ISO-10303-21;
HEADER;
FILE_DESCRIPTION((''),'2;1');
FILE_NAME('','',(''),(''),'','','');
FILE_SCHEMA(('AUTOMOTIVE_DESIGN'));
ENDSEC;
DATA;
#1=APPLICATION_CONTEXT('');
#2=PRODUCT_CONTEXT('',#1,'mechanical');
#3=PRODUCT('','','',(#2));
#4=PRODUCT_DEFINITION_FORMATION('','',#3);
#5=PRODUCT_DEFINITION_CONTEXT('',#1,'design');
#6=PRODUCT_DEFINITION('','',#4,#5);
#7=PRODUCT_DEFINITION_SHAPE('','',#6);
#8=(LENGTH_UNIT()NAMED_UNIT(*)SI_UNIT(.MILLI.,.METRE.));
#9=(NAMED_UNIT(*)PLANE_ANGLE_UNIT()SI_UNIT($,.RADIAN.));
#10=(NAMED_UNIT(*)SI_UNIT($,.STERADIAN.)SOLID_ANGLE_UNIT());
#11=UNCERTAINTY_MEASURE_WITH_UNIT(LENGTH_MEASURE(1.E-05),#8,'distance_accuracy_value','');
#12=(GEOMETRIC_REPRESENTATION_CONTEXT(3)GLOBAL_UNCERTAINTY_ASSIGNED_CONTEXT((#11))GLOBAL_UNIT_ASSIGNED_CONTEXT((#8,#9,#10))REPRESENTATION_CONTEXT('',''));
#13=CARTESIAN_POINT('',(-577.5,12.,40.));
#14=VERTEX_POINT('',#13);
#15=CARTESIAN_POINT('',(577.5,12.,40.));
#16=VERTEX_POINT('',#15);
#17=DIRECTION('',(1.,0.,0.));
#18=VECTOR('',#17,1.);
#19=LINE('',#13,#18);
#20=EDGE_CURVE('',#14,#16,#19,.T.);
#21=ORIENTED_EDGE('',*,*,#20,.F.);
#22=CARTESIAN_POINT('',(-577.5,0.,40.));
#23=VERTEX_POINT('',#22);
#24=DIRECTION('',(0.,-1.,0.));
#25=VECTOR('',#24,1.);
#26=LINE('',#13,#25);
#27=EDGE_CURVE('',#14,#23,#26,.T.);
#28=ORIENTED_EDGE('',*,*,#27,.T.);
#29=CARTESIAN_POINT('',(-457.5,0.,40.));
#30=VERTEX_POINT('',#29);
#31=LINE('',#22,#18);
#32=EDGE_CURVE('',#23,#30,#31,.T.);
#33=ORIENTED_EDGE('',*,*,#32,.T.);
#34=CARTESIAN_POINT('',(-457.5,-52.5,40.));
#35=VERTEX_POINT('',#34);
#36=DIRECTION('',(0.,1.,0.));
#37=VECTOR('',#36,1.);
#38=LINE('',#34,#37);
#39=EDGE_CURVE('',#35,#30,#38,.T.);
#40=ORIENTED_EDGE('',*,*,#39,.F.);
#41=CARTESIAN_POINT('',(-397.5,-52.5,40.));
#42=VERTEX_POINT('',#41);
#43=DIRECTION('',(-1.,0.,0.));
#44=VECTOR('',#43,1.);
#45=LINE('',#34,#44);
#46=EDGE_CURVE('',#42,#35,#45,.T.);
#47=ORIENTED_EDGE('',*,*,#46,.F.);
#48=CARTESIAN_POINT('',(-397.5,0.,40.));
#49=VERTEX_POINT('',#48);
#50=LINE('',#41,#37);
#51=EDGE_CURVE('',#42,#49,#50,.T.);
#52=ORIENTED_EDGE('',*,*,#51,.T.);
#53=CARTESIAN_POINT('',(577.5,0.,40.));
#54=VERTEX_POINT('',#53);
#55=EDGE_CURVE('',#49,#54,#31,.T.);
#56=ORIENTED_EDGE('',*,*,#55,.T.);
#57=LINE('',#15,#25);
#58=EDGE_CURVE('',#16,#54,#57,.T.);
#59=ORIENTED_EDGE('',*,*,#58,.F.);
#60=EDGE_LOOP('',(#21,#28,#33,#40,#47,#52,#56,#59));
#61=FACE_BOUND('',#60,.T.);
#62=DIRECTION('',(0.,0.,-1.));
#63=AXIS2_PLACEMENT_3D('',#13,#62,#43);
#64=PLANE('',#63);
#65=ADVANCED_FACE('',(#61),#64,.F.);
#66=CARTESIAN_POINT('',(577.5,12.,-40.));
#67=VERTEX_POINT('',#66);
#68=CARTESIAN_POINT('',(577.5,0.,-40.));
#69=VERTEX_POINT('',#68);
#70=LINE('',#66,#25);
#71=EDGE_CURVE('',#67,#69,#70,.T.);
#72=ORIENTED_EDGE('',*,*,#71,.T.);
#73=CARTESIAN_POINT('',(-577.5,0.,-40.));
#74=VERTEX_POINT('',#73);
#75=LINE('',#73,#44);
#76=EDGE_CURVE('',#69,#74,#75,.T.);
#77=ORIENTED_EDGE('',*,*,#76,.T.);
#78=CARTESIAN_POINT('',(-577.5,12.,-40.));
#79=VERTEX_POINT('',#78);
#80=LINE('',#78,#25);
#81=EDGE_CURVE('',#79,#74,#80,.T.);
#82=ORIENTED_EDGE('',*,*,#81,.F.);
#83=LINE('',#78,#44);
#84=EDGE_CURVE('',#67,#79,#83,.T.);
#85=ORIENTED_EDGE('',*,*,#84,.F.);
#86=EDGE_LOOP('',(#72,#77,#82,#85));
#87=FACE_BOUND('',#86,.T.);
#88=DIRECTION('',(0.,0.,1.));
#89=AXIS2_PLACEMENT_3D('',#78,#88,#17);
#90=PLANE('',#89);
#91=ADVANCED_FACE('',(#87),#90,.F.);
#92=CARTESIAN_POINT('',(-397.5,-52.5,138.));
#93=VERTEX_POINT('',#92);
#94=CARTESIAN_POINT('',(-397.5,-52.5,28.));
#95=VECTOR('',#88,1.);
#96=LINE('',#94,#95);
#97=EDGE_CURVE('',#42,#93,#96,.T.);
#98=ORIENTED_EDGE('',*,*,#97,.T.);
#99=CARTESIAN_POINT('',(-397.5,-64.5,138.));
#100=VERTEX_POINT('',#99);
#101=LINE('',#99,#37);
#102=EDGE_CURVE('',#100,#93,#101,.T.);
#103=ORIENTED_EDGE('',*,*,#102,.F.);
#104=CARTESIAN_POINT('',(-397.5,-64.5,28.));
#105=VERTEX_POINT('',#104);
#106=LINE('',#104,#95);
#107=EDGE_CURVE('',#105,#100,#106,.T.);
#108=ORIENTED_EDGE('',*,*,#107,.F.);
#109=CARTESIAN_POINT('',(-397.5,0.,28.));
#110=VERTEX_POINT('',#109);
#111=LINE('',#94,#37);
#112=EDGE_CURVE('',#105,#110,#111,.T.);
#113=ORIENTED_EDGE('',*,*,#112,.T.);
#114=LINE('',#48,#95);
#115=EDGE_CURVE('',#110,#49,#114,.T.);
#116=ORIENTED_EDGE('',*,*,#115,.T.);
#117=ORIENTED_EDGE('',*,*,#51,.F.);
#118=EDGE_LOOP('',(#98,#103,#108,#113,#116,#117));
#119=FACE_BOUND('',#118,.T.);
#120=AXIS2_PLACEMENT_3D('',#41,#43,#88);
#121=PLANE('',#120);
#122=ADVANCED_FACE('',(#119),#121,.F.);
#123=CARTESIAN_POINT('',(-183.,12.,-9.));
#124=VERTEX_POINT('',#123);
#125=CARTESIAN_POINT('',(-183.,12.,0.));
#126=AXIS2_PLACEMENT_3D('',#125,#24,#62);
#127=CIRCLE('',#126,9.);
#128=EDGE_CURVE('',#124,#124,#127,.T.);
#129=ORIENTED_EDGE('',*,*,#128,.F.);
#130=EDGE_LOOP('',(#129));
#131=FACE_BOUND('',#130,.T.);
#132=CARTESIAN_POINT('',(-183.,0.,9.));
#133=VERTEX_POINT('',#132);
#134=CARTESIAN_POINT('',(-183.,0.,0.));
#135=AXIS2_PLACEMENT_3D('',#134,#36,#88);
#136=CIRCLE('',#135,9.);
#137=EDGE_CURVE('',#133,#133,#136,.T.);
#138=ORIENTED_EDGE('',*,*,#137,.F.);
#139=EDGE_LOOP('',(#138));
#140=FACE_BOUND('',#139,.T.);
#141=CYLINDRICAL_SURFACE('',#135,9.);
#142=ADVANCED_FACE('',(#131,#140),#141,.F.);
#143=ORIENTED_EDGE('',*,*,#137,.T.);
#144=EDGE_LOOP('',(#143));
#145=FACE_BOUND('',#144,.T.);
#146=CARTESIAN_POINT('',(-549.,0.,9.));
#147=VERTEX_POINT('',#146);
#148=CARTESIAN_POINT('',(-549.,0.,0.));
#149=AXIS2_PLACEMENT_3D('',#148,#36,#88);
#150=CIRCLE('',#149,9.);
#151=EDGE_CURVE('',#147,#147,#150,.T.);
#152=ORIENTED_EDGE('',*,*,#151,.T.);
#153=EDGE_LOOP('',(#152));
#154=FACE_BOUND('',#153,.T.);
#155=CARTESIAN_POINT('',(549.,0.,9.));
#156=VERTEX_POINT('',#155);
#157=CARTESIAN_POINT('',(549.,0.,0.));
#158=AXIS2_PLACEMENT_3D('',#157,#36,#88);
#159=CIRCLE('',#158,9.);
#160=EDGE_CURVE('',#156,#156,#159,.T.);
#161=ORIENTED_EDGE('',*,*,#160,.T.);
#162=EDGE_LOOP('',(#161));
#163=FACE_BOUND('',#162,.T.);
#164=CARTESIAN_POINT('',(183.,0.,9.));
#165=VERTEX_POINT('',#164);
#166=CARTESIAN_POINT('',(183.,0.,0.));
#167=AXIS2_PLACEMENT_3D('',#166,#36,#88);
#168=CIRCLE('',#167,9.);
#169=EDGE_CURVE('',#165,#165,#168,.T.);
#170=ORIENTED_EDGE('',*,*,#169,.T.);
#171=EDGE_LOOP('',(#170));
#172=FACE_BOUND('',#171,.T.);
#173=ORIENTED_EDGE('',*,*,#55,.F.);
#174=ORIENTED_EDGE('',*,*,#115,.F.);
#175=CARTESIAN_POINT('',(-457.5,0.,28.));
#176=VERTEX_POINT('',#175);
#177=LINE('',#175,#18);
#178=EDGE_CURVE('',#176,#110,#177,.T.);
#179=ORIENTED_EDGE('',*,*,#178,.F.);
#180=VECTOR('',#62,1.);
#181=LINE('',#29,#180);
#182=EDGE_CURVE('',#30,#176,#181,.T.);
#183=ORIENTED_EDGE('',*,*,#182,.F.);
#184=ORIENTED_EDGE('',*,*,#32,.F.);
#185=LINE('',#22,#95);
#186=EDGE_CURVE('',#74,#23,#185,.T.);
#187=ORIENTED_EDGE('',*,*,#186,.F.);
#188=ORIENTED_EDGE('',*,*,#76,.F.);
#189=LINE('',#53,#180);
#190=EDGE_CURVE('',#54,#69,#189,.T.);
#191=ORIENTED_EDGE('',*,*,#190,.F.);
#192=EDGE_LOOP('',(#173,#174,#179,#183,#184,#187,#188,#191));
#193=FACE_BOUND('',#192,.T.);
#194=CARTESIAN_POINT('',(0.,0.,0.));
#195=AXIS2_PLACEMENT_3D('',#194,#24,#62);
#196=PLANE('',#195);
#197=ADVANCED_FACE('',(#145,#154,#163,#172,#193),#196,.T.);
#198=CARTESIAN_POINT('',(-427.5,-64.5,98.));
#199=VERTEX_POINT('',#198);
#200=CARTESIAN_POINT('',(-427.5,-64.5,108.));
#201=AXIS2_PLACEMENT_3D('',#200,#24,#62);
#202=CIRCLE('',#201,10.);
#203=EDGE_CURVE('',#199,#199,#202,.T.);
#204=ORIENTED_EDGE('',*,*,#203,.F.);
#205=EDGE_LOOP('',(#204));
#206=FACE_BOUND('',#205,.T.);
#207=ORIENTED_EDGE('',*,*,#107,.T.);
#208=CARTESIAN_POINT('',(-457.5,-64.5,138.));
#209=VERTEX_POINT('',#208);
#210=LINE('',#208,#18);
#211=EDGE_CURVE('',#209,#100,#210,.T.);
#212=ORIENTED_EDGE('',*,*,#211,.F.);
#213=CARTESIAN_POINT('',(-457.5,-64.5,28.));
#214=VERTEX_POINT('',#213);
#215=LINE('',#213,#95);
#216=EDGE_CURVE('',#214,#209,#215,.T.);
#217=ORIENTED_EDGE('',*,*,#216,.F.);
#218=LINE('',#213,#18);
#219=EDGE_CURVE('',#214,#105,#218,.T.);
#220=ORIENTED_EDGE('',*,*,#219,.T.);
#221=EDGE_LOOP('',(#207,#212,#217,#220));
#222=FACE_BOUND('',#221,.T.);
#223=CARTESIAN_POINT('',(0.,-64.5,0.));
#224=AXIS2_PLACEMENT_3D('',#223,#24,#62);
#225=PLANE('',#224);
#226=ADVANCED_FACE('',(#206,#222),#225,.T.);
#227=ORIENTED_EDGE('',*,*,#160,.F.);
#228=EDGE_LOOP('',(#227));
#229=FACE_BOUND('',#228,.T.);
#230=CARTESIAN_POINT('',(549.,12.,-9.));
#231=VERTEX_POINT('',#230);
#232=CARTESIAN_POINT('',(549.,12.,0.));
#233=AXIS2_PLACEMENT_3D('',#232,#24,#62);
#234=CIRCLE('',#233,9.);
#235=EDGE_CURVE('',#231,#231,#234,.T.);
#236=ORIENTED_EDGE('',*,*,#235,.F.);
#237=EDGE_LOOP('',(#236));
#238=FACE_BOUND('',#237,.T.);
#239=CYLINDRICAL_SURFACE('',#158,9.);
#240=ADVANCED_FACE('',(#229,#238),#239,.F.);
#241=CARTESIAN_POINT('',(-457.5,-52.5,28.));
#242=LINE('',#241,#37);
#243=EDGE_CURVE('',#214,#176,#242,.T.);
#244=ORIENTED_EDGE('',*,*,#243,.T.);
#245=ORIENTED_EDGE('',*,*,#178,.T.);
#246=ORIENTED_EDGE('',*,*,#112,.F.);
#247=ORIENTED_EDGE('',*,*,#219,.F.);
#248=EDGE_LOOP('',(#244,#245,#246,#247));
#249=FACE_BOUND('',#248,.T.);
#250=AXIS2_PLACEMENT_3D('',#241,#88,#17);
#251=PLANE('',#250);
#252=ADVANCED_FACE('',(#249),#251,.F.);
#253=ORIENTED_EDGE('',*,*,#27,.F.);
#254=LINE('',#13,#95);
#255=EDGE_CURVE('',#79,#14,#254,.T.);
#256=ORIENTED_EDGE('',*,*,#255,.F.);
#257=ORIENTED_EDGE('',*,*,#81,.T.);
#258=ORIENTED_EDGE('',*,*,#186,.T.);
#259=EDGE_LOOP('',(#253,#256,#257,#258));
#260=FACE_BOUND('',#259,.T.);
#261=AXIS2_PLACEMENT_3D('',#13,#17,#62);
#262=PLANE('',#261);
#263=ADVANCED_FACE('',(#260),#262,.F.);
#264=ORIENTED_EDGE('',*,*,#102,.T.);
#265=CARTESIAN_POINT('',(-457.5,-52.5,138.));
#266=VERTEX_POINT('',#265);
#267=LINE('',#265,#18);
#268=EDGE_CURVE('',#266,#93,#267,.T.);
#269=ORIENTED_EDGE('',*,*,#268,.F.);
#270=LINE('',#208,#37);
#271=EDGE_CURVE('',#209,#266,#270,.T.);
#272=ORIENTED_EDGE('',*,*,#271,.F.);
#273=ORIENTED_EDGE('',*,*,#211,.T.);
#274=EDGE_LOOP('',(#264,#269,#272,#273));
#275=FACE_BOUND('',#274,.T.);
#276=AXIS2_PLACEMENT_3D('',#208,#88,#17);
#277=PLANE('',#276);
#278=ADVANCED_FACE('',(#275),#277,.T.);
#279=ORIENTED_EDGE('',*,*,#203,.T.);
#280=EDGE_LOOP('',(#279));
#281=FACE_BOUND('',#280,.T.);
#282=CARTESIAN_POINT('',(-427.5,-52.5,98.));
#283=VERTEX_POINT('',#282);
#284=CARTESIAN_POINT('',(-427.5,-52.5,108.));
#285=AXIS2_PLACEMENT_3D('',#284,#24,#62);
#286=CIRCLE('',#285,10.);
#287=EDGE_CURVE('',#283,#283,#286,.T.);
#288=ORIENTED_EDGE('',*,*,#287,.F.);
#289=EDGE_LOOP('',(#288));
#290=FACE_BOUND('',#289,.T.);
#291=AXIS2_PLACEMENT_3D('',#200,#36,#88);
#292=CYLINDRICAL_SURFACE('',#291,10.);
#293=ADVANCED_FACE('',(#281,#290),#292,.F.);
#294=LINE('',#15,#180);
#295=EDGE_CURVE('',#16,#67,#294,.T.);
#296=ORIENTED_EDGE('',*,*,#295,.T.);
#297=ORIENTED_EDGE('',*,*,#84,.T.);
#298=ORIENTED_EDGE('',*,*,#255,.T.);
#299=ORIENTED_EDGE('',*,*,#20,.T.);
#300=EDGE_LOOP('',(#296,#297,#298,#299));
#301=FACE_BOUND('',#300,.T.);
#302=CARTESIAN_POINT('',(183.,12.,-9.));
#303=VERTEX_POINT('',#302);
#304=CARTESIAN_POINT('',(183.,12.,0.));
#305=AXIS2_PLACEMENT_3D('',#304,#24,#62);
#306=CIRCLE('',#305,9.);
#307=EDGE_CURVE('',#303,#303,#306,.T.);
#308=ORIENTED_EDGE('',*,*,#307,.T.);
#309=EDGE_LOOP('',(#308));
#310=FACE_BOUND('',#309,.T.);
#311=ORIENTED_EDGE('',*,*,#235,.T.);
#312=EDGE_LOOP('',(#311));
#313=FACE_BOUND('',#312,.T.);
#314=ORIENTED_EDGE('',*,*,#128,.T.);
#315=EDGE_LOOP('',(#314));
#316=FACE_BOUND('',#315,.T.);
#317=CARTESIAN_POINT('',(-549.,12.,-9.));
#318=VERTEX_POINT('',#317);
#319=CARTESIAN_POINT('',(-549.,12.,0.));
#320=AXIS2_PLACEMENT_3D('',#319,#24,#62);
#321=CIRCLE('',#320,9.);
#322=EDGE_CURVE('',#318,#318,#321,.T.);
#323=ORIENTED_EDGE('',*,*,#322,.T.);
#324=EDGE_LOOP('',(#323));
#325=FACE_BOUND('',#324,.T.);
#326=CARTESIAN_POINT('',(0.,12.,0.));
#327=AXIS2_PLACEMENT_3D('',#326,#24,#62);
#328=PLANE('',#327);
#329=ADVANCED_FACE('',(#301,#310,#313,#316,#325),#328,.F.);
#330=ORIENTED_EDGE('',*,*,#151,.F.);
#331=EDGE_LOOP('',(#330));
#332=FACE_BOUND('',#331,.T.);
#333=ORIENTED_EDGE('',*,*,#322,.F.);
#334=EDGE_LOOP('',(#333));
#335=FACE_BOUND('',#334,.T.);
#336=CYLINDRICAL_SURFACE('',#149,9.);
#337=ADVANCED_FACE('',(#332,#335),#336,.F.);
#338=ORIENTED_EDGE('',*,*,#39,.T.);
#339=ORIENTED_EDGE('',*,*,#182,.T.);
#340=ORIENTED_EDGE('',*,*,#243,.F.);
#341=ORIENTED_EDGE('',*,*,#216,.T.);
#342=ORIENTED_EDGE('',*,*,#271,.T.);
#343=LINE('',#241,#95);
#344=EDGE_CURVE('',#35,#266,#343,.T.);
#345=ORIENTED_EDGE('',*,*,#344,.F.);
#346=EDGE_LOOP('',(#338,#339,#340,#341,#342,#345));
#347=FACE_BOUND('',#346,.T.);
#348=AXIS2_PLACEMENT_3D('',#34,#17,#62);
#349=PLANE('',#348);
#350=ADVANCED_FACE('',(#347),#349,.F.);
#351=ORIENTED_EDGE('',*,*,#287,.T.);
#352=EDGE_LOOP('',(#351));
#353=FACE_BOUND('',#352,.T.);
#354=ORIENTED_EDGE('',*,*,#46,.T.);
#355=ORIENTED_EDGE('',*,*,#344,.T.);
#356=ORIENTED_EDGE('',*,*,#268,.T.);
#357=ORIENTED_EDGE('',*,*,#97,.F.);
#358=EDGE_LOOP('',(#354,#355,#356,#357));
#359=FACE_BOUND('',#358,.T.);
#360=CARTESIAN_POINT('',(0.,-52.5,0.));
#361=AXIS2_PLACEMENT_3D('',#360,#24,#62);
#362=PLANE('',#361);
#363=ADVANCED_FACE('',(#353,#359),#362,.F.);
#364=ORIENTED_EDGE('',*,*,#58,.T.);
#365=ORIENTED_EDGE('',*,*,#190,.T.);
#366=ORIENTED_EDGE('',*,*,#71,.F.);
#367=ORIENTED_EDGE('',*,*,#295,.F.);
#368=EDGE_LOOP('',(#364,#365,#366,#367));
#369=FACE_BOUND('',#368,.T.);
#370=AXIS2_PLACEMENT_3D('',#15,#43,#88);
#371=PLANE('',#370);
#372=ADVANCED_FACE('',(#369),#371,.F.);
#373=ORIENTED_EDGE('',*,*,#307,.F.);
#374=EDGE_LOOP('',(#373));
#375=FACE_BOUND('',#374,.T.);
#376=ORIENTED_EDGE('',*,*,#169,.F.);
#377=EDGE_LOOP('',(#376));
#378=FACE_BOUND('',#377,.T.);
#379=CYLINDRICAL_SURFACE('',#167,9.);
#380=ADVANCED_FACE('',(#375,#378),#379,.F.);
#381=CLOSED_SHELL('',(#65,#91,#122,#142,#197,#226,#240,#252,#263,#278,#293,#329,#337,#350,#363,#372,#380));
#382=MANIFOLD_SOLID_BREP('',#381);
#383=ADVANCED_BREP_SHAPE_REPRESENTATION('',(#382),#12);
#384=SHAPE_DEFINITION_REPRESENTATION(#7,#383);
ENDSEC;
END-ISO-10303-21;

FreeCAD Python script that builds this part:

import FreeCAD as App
import Part
import Sketcher

doc = App.newDocument("Part")
body = doc.addObject("PartDesign::Body", "Body")

sketch1 = body.newObject("Sketcher::SketchObject", "Sketch")
sketch1.AttachmentSupport = (doc.getObject("XZ_Plane"), [""])
sketch1.MapMode = "FlatFace"
sketch1.addGeometry([
    Part.LineSegment(App.Vector(-578, -40, 0), App.Vector(-578, 40, 0)),
    Part.LineSegment(App.Vector(-578, 40, 0), App.Vector(578, 40, 0)),
    Part.LineSegment(App.Vector(578, 40, 0), App.Vector(578, -40, 0)),
    Part.LineSegment(App.Vector(578, -40, 0), App.Vector(-578, -40, 0)),
], False)
sketch1.addConstraint([
    Sketcher.Constraint("Coincident", 0, 2, 1, 1),
    Sketcher.Constraint("Coincident", 1, 2, 2, 1),
    Sketcher.Constraint("Coincident", 2, 2, 3, 1),
    Sketcher.Constraint("Coincident", 3, 2, 0, 1),
    Sketcher.Constraint("Vertical", 0),
    Sketcher.Constraint("Horizontal", 1),
    Sketcher.Constraint("Vertical", 2),
    Sketcher.Constraint("Horizontal", 3),
    Sketcher.Constraint("Symmetric", 0, 2, 2, 2, -1, 1),
    Sketcher.Constraint("DistanceX", 1, 1, 1, 2, 1155.0),
    Sketcher.Constraint("DistanceY", 0, 1, 0, 2, 80.0),
])
pad1 = body.newObject("PartDesign::Pad", "Pad")
pad1.Profile = sketch1
pad1.Length = 12
pad1.Reversed = True

sketch2 = body.newObject("Sketcher::SketchObject", "Sketch001")
sketch2.AttachmentSupport = (doc.getObject("XZ_Plane"), [""])
sketch2.MapMode = "FlatFace"
sketch2.AttachmentOffset = App.Placement(App.Vector(0, 0, -12), App.Rotation())
sketch2.addGeometry(Part.Circle(App.Vector(-549, 0, 0), App.Vector(0, 0, 1), 9), False)
sketch2.addConstraint([
    Sketcher.Constraint("PointOnObject", 0, 3, -1),
    Sketcher.Constraint("Diameter", 0, 18.0),
    Sketcher.Constraint("DistanceX", 0, 3, -1, 1, 549.0),
])
pocket1 = body.newObject("PartDesign::Pocket", "Pocket")
pocket1.Profile = sketch2
pocket1.Length = 1160.015976
pocket1.Midplane = True
doc.recompute()

linearpattern = body.newObject("PartDesign::LinearPattern", "LinearPattern")
linearpattern.Originals = [pocket1]
linearpattern.Direction = (doc.getObject("X_Axis"), [""])
linearpattern.Mode = "offset"
linearpattern.Offset = 366
linearpattern.Occurrences = 4
body.Tip = linearpattern

sketch3 = body.newObject("Sketcher::SketchObject", "Sketch002")
sketch3.AttachmentSupport = (doc.getObject("XZ_Plane"), [""])
sketch3.MapMode = "FlatFace"
sketch3.AttachmentOffset = App.Placement(App.Vector(0, 0, -12), App.Rotation())
sketch3.addGeometry([
    Part.LineSegment(App.Vector(-458, 40, 0), App.Vector(-458, 138, 0)),
    Part.LineSegment(App.Vector(-458, 138, 0), App.Vector(-398, 138, 0)),
    Part.LineSegment(App.Vector(-398, 138, 0), App.Vector(-398, 40, 0)),
    Part.LineSegment(App.Vector(-398, 40, 0), App.Vector(-458, 40, 0)),
    Part.Circle(App.Vector(-428, 108, 0), App.Vector(0, 0, 1), 10),
], False)
sketch3.addConstraint([
    Sketcher.Constraint("Coincident", 0, 2, 1, 1),
    Sketcher.Constraint("Coincident", 1, 2, 2, 1),
    Sketcher.Constraint("Coincident", 2, 2, 3, 1),
    Sketcher.Constraint("Coincident", 3, 2, 0, 1),
    Sketcher.Constraint("Vertical", 0),
    Sketcher.Constraint("Horizontal", 1),
    Sketcher.Constraint("Vertical", 2),
    Sketcher.Constraint("Horizontal", 3),
    Sketcher.Constraint("Diameter", 4, 20.0),
    Sketcher.Constraint("DistanceX", 1, 1, 1, 2, 60.0),
    Sketcher.Constraint("DistanceY", 0, 1, 0, 2, 98.0),
    Sketcher.Constraint("DistanceY", -1, 1, 4, 3, 108.0),
    Sketcher.Constraint("DistanceY", -1, 1, 0, 2, 138.0),
    Sketcher.Constraint("DistanceX", 0, 2, 4, 3, 30.0),
    Sketcher.Constraint("DistanceX", 4, 3, -1, 1, 427.5),
])
pad2 = body.newObject("PartDesign::Pad", "Pad001")
pad2.Profile = sketch3
pad2.Length = 12

sketch4 = body.newObject("Sketcher::SketchObject", "Sketch003")
sketch4.AttachmentSupport = (doc.getObject("XZ_Plane"), [""])
sketch4.MapMode = "FlatFace"
sketch4.addGeometry([
    Part.LineSegment(App.Vector(-398, 28, 0), App.Vector(-398, 40, 0)),
    Part.LineSegment(App.Vector(-398, 40, 0), App.Vector(-458, 40, 0)),
    Part.LineSegment(App.Vector(-458, 40, 0), App.Vector(-458, 28, 0)),
    Part.LineSegment(App.Vector(-458, 28, 0), App.Vector(-398, 28, 0)),
], False)
sketch4.addConstraint([
    Sketcher.Constraint("Coincident", 0, 2, 1, 1),
    Sketcher.Constraint("Coincident", 1, 2, 2, 1),
    Sketcher.Constraint("Coincident", 2, 2, 3, 1),
    Sketcher.Constraint("Coincident", 3, 2, 0, 1),
    Sketcher.Constraint("Vertical", 0),
    Sketcher.Constraint("Horizontal", 1),
    Sketcher.Constraint("Vertical", 2),
    Sketcher.Constraint("Horizontal", 3),
    Sketcher.Constraint("DistanceX", 1, 2, 1, 1, 60.0),
    Sketcher.Constraint("DistanceY", 0, 1, 0, 2, 12.0),
    Sketcher.Constraint("DistanceY", -1, 1, 0, 2, 40.0),
    Sketcher.Constraint("DistanceX", 0, 2, -1, 1, 397.5),
])
pad3 = body.newObject("PartDesign::Pad", "Pad002")
pad3.Profile = sketch4
pad3.Length = 52.5

sketch5 = body.newObject("Sketcher::SketchObject", "Sketch004")
sketch5.AttachmentSupport = (doc.getObject("XZ_Plane"), [""])
sketch5.MapMode = "FlatFace"
sketch5.AttachmentOffset = App.Placement(App.Vector(0, 0, 52.5), App.Rotation())
sketch5.addGeometry([
    Part.LineSegment(App.Vector(-458, 138, 0), App.Vector(-458, 28, 0)),
    Part.LineSegment(App.Vector(-458, 28, 0), App.Vector(-398, 28, 0)),
    Part.LineSegment(App.Vector(-398, 28, 0), App.Vector(-398, 138, 0)),
    Part.LineSegment(App.Vector(-398, 138, 0), App.Vector(-458, 138, 0)),
    Part.Circle(App.Vector(-428, 108, 0), App.Vector(0, 0, 1), 10),
], False)
sketch5.addConstraint([
    Sketcher.Constraint("Coincident", 0, 2, 1, 1),
    Sketcher.Constraint("Coincident", 1, 2, 2, 1),
    Sketcher.Constraint("Coincident", 2, 2, 3, 1),
    Sketcher.Constraint("Coincident", 3, 2, 0, 1),
    Sketcher.Constraint("Vertical", 0),
    Sketcher.Constraint("Horizontal", 1),
    Sketcher.Constraint("Vertical", 2),
    Sketcher.Constraint("Horizontal", 3),
    Sketcher.Constraint("Diameter", 4, 20.0),
    Sketcher.Constraint("DistanceX", 1, 1, 1, 2, 60.0),
    Sketcher.Constraint("DistanceY", 0, 2, 0, 1, 110.0),
    Sketcher.Constraint("DistanceY", -1, 1, 4, 3, 108.0),
    Sketcher.Constraint("DistanceY", -1, 1, 0, 2, 28.0),
    Sketcher.Constraint("DistanceX", 0, 2, 4, 3, 30.0),
    Sketcher.Constraint("DistanceX", 4, 3, -1, 1, 427.5),
])
pad4 = body.newObject("PartDesign::Pad", "Pad003")
pad4.Profile = sketch5
pad4.Length = 12

sketch6 = body.newObject("Sketcher::SketchObject", "Sketch005")
sketch6.AttachmentSupport = (doc.getObject("XZ_Plane"), [""])
sketch6.MapMode = "FlatFace"
sketch6.AttachmentOffset = App.Placement(App.Vector(0, 0, -12), App.Rotation())
sketch6.addGeometry([
    Part.LineSegment(App.Vector(-458, 40, 0), App.Vector(-458, 138, 0)),
    Part.LineSegment(App.Vector(-458, 138, 0), App.Vector(-398, 138, 0)),
    Part.LineSegment(App.Vector(-398, 138, 0), App.Vector(-398, 40, 0)),
    Part.LineSegment(App.Vector(-398, 40, 0), App.Vector(-458, 40, 0)),
], False)
sketch6.addConstraint([
    Sketcher.Constraint("Coincident", 0, 2, 1, 1),
    Sketcher.Constraint("Coincident", 1, 2, 2, 1),
    Sketcher.Constraint("Coincident", 2, 2, 3, 1),
    Sketcher.Constraint("Coincident", 3, 2, 0, 1),
    Sketcher.Constraint("Vertical", 0),
    Sketcher.Constraint("Horizontal", 1),
    Sketcher.Constraint("Vertical", 2),
    Sketcher.Constraint("Horizontal", 3),
    Sketcher.Constraint("DistanceX", 1, 1, 1, 2, 60.0),
    Sketcher.Constraint("DistanceY", 0, 1, 0, 2, 98.0),
    Sketcher.Constraint("DistanceY", -1, 1, 0, 2, 138.0),
    Sketcher.Constraint("DistanceX", 0, 2, -1, 1, 457.5),
])
pocket2 = body.newObject("PartDesign::Pocket", "Pocket001")
pocket2.Profile = sketch6
pocket2.Length = 12
pocket2.Reversed = True

doc.recompute()
